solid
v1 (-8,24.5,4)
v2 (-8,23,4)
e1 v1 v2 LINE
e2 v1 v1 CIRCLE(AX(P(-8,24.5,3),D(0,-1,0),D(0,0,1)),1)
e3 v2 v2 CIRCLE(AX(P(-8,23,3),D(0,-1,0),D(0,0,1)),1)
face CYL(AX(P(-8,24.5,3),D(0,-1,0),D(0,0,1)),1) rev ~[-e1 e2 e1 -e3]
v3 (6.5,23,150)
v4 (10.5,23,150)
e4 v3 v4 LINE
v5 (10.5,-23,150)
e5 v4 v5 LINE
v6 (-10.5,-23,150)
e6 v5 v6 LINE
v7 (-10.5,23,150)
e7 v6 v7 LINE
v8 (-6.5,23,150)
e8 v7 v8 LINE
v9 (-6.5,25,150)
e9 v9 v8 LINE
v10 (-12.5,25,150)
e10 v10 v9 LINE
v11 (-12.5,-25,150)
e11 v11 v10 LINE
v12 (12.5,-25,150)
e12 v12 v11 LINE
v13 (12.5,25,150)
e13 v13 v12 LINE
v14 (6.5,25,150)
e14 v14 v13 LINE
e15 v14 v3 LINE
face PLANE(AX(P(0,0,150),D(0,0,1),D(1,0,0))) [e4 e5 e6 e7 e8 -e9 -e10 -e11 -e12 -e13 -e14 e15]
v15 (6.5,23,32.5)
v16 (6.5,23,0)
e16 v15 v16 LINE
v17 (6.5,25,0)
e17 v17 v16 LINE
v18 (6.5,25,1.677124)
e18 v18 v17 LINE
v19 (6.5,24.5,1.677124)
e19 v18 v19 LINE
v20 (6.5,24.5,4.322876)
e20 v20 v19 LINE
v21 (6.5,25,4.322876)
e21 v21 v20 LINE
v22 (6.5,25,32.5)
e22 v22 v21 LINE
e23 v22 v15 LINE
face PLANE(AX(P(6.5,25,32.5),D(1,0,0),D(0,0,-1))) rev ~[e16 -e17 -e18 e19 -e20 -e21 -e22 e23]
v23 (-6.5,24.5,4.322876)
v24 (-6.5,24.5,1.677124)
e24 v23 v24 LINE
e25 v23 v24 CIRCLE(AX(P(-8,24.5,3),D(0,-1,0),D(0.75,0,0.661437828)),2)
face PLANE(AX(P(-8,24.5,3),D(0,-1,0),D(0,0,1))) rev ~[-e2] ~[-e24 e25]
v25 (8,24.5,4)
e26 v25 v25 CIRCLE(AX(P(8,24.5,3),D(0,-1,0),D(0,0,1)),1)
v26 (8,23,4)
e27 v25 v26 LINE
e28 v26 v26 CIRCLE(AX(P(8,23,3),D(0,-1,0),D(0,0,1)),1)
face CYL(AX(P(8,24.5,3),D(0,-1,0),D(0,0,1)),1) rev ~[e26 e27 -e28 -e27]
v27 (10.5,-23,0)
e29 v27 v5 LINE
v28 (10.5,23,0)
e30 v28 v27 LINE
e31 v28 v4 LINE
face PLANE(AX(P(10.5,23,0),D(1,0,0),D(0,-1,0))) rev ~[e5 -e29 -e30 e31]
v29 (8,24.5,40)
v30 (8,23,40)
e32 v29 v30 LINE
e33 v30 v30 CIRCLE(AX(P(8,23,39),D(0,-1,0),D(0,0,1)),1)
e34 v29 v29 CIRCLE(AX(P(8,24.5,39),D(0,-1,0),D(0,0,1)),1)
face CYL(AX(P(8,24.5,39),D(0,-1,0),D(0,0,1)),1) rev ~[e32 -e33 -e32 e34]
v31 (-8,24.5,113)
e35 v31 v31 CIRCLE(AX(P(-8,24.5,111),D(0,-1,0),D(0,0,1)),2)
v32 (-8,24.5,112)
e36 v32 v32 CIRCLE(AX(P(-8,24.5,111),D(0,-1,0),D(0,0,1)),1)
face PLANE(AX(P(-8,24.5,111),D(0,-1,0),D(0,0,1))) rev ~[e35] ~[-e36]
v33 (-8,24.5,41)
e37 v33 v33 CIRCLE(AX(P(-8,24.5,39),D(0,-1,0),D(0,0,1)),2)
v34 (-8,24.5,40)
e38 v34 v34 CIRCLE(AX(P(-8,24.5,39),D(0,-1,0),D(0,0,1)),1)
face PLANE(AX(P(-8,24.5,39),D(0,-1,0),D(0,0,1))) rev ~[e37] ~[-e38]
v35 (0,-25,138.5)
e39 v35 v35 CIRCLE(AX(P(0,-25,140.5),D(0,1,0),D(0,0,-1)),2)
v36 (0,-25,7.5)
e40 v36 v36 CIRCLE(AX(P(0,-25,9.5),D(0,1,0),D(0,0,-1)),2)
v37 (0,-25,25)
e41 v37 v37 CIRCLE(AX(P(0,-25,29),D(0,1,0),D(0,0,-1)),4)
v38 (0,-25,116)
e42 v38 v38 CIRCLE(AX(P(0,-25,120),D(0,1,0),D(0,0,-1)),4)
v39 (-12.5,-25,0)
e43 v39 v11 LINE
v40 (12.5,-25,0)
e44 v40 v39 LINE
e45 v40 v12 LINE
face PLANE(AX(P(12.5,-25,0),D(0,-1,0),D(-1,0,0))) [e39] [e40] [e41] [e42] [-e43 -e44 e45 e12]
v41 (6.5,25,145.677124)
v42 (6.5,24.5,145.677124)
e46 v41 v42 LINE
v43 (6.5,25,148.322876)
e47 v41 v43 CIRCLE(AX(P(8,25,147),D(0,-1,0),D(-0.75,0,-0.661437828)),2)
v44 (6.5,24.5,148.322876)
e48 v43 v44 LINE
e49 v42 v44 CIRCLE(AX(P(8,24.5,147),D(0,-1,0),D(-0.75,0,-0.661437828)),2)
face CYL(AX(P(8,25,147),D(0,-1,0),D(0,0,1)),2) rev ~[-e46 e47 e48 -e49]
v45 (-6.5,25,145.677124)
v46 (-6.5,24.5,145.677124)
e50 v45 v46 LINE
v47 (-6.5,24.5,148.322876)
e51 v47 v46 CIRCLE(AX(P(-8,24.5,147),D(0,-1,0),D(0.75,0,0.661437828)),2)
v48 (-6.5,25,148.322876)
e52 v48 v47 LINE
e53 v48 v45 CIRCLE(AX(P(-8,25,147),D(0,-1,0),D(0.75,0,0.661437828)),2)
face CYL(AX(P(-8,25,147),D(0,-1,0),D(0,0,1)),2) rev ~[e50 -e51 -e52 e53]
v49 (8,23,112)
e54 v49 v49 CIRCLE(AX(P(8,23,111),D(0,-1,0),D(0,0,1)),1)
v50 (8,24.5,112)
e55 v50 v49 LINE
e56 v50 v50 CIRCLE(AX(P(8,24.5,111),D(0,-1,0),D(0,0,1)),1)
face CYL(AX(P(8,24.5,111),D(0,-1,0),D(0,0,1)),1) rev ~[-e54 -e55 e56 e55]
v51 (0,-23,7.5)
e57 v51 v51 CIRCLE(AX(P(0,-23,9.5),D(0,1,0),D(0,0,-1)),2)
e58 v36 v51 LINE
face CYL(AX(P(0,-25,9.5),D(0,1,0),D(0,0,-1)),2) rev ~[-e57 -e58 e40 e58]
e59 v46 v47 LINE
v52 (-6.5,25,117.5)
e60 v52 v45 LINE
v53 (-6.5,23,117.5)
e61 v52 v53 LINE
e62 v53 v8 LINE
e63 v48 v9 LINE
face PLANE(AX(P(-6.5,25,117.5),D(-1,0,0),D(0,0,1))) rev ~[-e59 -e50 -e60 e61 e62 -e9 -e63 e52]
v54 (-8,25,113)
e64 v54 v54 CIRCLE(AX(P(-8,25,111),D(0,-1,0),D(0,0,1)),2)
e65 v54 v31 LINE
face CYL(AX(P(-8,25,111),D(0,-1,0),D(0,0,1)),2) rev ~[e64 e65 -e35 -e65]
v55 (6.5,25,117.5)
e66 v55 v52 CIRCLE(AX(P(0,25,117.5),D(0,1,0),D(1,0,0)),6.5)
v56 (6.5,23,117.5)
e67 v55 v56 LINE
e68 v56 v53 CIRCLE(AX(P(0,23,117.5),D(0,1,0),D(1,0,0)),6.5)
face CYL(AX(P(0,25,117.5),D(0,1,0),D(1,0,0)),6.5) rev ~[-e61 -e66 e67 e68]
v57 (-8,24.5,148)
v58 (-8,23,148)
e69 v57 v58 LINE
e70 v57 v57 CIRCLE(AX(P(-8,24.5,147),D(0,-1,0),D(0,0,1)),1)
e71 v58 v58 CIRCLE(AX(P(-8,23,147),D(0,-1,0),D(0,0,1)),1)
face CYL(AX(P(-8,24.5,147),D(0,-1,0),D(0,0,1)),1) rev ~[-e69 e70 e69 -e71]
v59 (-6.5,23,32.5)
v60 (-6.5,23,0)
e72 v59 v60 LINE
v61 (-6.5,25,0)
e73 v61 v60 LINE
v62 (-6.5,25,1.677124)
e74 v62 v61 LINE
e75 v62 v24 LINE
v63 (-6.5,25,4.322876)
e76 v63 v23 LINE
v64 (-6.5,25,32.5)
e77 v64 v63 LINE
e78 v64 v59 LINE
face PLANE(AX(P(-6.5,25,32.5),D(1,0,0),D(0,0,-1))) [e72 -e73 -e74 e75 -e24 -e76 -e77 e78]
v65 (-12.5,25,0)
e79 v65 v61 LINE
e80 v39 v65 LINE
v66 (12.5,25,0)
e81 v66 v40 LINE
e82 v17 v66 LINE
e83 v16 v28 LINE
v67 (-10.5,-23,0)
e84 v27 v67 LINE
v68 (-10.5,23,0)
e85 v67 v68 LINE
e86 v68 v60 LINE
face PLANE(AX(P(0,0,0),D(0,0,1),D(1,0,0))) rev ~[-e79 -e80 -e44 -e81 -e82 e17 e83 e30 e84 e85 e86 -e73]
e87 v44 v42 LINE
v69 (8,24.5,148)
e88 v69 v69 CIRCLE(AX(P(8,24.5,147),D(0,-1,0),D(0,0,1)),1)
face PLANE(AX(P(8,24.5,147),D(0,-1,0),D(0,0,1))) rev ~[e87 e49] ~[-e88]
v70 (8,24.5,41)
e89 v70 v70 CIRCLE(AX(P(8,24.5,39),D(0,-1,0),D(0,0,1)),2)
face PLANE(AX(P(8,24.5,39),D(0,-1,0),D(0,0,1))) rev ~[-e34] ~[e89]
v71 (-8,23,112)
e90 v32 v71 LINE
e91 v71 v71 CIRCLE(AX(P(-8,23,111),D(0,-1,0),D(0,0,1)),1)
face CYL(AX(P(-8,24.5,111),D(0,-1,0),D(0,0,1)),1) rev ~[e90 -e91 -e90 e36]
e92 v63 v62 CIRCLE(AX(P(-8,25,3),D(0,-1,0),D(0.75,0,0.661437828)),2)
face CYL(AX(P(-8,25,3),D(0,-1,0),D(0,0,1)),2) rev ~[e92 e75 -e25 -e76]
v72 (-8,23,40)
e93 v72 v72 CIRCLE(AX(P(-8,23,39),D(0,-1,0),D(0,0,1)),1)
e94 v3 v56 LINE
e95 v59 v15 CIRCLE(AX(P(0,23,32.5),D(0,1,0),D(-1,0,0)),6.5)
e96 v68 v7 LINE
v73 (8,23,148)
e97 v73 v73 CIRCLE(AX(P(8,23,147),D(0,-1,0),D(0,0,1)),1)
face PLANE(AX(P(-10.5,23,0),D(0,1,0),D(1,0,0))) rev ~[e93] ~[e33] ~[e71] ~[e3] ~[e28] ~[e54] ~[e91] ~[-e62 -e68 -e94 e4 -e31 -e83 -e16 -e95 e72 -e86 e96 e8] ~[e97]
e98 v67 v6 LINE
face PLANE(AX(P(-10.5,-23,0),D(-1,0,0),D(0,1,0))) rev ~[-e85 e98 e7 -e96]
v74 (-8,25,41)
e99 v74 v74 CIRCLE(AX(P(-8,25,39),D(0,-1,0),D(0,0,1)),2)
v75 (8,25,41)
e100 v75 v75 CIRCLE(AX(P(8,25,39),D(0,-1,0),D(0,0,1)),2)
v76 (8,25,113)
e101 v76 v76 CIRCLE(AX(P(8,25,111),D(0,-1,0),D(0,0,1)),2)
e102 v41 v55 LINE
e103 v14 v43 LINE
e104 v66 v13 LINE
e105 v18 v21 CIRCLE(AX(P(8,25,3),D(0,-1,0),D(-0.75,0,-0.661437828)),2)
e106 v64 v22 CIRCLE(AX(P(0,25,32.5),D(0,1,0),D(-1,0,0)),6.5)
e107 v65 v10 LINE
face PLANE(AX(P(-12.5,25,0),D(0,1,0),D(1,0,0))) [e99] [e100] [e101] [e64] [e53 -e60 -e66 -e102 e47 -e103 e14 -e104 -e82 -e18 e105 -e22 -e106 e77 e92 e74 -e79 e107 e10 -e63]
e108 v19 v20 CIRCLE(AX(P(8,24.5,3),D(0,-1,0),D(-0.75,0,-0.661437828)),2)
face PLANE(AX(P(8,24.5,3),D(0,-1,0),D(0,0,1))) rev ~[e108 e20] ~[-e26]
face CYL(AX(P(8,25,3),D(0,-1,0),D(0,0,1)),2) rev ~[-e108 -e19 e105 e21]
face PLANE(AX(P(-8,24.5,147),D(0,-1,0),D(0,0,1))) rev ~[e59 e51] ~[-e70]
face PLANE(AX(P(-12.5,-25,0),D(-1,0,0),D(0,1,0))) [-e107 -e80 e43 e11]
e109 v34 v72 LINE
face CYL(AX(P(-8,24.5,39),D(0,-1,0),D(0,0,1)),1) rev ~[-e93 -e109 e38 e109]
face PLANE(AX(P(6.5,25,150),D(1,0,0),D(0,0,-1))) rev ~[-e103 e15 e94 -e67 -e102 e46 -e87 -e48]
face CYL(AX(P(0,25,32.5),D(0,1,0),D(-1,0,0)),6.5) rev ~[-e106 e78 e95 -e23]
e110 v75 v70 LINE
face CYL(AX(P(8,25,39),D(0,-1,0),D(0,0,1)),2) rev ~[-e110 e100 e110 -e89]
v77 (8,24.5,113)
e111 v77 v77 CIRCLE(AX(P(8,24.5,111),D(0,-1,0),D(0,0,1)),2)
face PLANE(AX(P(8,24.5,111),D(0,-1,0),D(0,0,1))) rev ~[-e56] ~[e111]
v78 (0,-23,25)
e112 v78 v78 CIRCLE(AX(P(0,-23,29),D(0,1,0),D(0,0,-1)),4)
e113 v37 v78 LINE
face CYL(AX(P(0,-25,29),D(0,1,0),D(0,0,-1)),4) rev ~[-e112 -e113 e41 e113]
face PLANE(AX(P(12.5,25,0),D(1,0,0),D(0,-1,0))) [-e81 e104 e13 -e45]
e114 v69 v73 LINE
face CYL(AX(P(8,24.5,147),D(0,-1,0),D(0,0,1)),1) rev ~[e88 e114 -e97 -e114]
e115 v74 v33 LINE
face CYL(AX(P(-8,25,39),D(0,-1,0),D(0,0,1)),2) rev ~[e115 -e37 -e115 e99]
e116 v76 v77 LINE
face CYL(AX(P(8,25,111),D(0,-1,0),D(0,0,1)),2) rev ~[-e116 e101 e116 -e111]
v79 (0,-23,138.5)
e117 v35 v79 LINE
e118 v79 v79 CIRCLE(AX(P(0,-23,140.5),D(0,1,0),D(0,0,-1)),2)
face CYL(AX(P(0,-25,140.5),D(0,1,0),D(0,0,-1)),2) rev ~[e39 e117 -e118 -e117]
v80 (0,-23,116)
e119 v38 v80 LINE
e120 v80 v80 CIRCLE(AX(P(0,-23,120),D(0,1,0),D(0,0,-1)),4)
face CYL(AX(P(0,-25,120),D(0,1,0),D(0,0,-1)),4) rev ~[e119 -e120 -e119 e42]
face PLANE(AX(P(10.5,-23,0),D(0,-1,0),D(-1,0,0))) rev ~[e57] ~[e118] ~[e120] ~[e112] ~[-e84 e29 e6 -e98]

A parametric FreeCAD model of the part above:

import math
import FreeCAD as App
import Part
import Sketcher
Q = App.Units.Quantity


def add_polygon(sketch, points):
    """Adds a closed chain of lines whose ends are joined by coincident constraints."""
    first, n = sketch.GeometryCount, len(points)
    for a, b in zip(points, points[1:] + points[:1]):
        sketch.addGeometry(Part.LineSegment(App.Vector(*a, 0), App.Vector(*b, 0)), False)
    for i in range(n):
        sketch.addConstraint(Sketcher.Constraint("Coincident", first + i, 2, first + (i + 1) % n, 1))

doc = App.newDocument("Part")
body = doc.addObject("PartDesign::Body", "Body")

# Sketch on XY plane
sketch1 = body.newObject("Sketcher::SketchObject", "Sketch")
sketch1.AttachmentSupport = (doc.getObject("XY_Plane"), [""])
sketch1.MapMode = "FlatFace"
add_polygon(sketch1, [(12, 25), (-12, 25), (-12, -25), (12, -25)])  # lines 0-3
add_polygon(sketch1, [(-10, -23), (-10, 23), (10, 23), (10, -23)])  # lines 4-7
sketch1.addConstraint(Sketcher.Constraint("Horizontal", 0))
sketch1.addConstraint(Sketcher.Constraint("Vertical", 1))
sketch1.addConstraint(Sketcher.Constraint("Horizontal", 2))
sketch1.addConstraint(Sketcher.Constraint("Vertical", 3))
sketch1.addConstraint(Sketcher.Constraint("Vertical", 4))
sketch1.addConstraint(Sketcher.Constraint("Horizontal", 5))
sketch1.addConstraint(Sketcher.Constraint("Vertical", 6))
sketch1.addConstraint(Sketcher.Constraint("Horizontal", 7))
sketch1.addConstraint(Sketcher.Constraint("Symmetric", 0, 2, 2, 2, -1, 1))
sketch1.addConstraint(Sketcher.Constraint("Symmetric", 4, 2, 6, 2, -1, 1))
sketch1.addConstraint(Sketcher.Constraint("DistanceX", 0, 2, 0, 1, Q("25 mm")))
sketch1.addConstraint(Sketcher.Constraint("DistanceX", 5, 1, 5, 2, Q("21 mm")))
sketch1.addConstraint(Sketcher.Constraint("DistanceY", 1, 2, 1, 1, Q("50 mm")))
sketch1.addConstraint(Sketcher.Constraint("DistanceY", 4, 1, 4, 2, Q("46 mm")))
pad1 = body.newObject("PartDesign::Pad", "Pad")
pad1.Profile = sketch1
pad1.Length = 150

# Sketch on XZ plane
sketch2 = body.newObject("Sketcher::SketchObject", "Sketch001")
sketch2.AttachmentSupport = (doc.getObject("XZ_Plane"), [""])
sketch2.MapMode = "FlatFace"
sketch2.AttachmentOffset = App.Placement(App.Vector(0, 0, -25), App.Rotation())
sketch2.addGeometry(Part.LineSegment(App.Vector(6, 0, 0), App.Vector(-6, 0, 0)), False)
sketch2.addGeometry(Part.LineSegment(App.Vector(-6, 0, 0), App.Vector(-6, 32, 0)), False)
sketch2.addGeometry(Part.ArcOfCircle(Part.Circle(App.Vector(0, 32, 0), App.Vector(0, 0, 1), 6), math.radians(0), math.radians(180)), False)
sketch2.addGeometry(Part.LineSegment(App.Vector(6, 32, 0), App.Vector(6, 0, 0)), False)
sketch2.addConstraint(Sketcher.Constraint("Coincident", 0, 2, 1, 1))
sketch2.addConstraint(Sketcher.Constraint("Tangent", 1, 2, 2, 2))
sketch2.addConstraint(Sketcher.Constraint("Tangent", 2, 1, 3, 1))
sketch2.addConstraint(Sketcher.Constraint("Coincident", 3, 2, 0, 1))
sketch2.addConstraint(Sketcher.Constraint("Horizontal", 0))
sketch2.addConstraint(Sketcher.Constraint("Vertical", 1))
sketch2.addConstraint(Sketcher.Constraint("Vertical", 3))
sketch2.addConstraint(Sketcher.Constraint("Symmetric", 0, 2, 3, 2, -1, 1))
sketch2.addConstraint(Sketcher.Constraint("Radius", 2, Q("6.5 mm")))
sketch2.addConstraint(Sketcher.Constraint("DistanceY", 1, 1, 1, 2, Q("32.5 mm")))
pocket1 = body.newObject("PartDesign::Pocket", "Pocket")
pocket1.Profile = sketch2
pocket1.Length = 2
pocket1.Reversed = True

# Sketch on XZ plane
sketch3 = body.newObject("Sketcher::SketchObject", "Sketch002")
sketch3.AttachmentSupport = (doc.getObject("XZ_Plane"), [""])
sketch3.MapMode = "FlatFace"
sketch3.AttachmentOffset = App.Placement(App.Vector(0, 0, -25), App.Rotation())
sketch3.addGeometry(Part.Circle(App.Vector(-8, 3, 0), App.Vector(0, 0, 1), 1), False)
sketch3.addGeometry(Part.Circle(App.Vector(8, 3, 0), App.Vector(0, 0, 1), 1), False)
sketch3.addGeometry(Part.Circle(App.Vector(8, 39, 0), App.Vector(0, 0, 1), 1), False)
sketch3.addGeometry(Part.Circle(App.Vector(-8, 39, 0), App.Vector(0, 0, 1), 1), False)
sketch3.addConstraint(Sketcher.Constraint("Equal", 0, 1))
sketch3.addConstraint(Sketcher.Constraint("Equal", 1, 2))
sketch3.addConstraint(Sketcher.Constraint("Equal", 2, 3))
sketch3.addConstraint(Sketcher.Constraint("Symmetric", 0, 3, 1, 3, -2))
sketch3.addConstraint(Sketcher.Constraint("Symmetric", 2, 3, 3, 3, -2))
sketch3.addConstraint(Sketcher.Constraint("Vertical", 1, 3, 2, 3))
sketch3.addConstraint(Sketcher.Constraint("Diameter", 0, Q("2 mm")))
sketch3.addConstraint(Sketcher.Constraint("DistanceX", 0, 3, -1, 1, Q("8 mm")))
sketch3.addConstraint(Sketcher.Constraint("DistanceY", -1, 1, 0, 3, Q("3 mm")))
sketch3.addConstraint(Sketcher.Constraint("DistanceY", -1, 1, 2, 3, Q("39 mm")))
doc.recompute()
hole = body.newObject("PartDesign::Hole", "Hole")
hole.Profile = sketch3
hole.ThreadType = "None"
hole.Diameter = 2
hole.DepthType = "Dimension"
hole.Depth = 2
hole.DrillPoint = "Angled"
hole.DrillPointAngle = 118
hole.HoleCutType = "Counterbore"
hole.HoleCutDiameter = 4
hole.HoleCutDepth = 0.5
hole.Reversed = True

# Sketch on XZ plane
sketch4 = body.newObject("Sketcher::SketchObject", "Sketch003")
sketch4.AttachmentSupport = (doc.getObject("XZ_Plane"), [""])
sketch4.MapMode = "FlatFace"
sketch4.AttachmentOffset = App.Placement(App.Vector(0, 0, 25), App.Rotation())
sketch4.addGeometry(Part.Circle(App.Vector(0, 9.5, 0), App.Vector(0, 0, 1), 2), False)
sketch4.addConstraint(Sketcher.Constraint("PointOnObject", 0, 3, -2))
sketch4.addConstraint(Sketcher.Constraint("Diameter", 0, Q("4 mm")))
sketch4.addConstraint(Sketcher.Constraint("DistanceY", -1, 1, 0, 3, Q("9.5 mm")))
doc.recompute()
hole2 = body.newObject("PartDesign::Hole", "Hole001")
hole2.Profile = sketch4
hole2.ThreadType = "None"
hole2.Diameter = 4
hole2.DepthType = "ThroughAll"

# Sketch on XZ plane
sketch5 = body.newObject("Sketcher::SketchObject", "Sketch004")
sketch5.AttachmentSupport = (doc.getObject("XZ_Plane"), [""])
sketch5.MapMode = "FlatFace"
sketch5.AttachmentOffset = App.Placement(App.Vector(0, 0, 25), App.Rotation())
sketch5.addGeometry(Part.Circle(App.Vector(0, 29, 0), App.Vector(0, 0, 1), 4), False)
sketch5.addConstraint(Sketcher.Constraint("PointOnObject", 0, 3, -2))
sketch5.addConstraint(Sketcher.Constraint("Diameter", 0, Q("8 mm")))
sketch5.addConstraint(Sketcher.Constraint("DistanceY", -1, 1, 0, 3, Q("29 mm")))
doc.recompute()
hole3 = body.newObject("PartDesign::Hole", "Hole002")
hole3.Profile = sketch5
hole3.ThreadType = "None"
hole3.Diameter = 8
hole3.DepthType = "ThroughAll"

# Sketch on XZ plane
sketch6 = body.newObject("Sketcher::SketchObject", "Sketch005")
sketch6.AttachmentSupport = (doc.getObject("XZ_Plane"), [""])
sketch6.MapMode = "FlatFace"
sketch6.AttachmentOffset = App.Placement(App.Vector(0, 0, -25), App.Rotation())
sketch6.addGeometry(Part.LineSegment(App.Vector(-6, 118, 0), App.Vector(-6, 150, 0)), False)
sketch6.addGeometry(Part.LineSegment(App.Vector(-6, 150, 0), App.Vector(6, 150, 0)), False)
sketch6.addGeometry(Part.LineSegment(App.Vector(6, 150, 0), App.Vector(6, 118, 0)), False)
sketch6.addGeometry(Part.ArcOfCircle(Part.Circle(App.Vector(0, 118, 0), App.Vector(0, 0, 1), 6), math.radians(180), math.radians(360)), False)
sketch6.addConstraint(Sketcher.Constraint("Coincident", 0, 2, 1, 1))
sketch6.addConstraint(Sketcher.Constraint("Coincident", 1, 2, 2, 1))
sketch6.addConstraint(Sketcher.Constraint("Tangent", 2, 2, 3, 2))
sketch6.addConstraint(Sketcher.Constraint("Tangent", 3, 1, 0, 1))
sketch6.addConstraint(Sketcher.Constraint("Vertical", 0))
sketch6.addConstraint(Sketcher.Constraint("Horizontal", 1))
sketch6.addConstraint(Sketcher.Constraint("Vertical", 2))
sketch6.addConstraint(Sketcher.Constraint("PointOnObject", 3, 3, -2))
sketch6.addConstraint(Sketcher.Constraint("Radius", 3, Q("6.5 mm")))
sketch6.addConstraint(Sketcher.Constraint("DistanceY", 0, 1, 0, 2, Q("32.5 mm")))
sketch6.addConstraint(Sketcher.Constraint("DistanceY", -1, 1, 0, 2, Q("150 mm")))
pocket2 = body.newObject("PartDesign::Pocket", "Pocket001")
pocket2.Profile = sketch6
pocket2.Length = 2
pocket2.Reversed = True

# Sketch on XZ plane
sketch7 = body.newObject("Sketcher::SketchObject", "Sketch006")
sketch7.AttachmentSupport = (doc.getObject("XZ_Plane"), [""])
sketch7.MapMode = "FlatFace"
sketch7.AttachmentOffset = App.Placement(App.Vector(0, 0, -25), App.Rotation())
sketch7.addGeometry(Part.Circle(App.Vector(8, 147, 0), App.Vector(0, 0, 1), 1), False)
sketch7.addGeometry(Part.Circle(App.Vector(-8, 147, 0), App.Vector(0, 0, 1), 1), False)
sketch7.addGeometry(Part.Circle(App.Vector(-8, 111, 0), App.Vector(0, 0, 1), 1), False)
sketch7.addGeometry(Part.Circle(App.Vector(8, 111, 0), App.Vector(0, 0, 1), 1), False)
sketch7.addConstraint(Sketcher.Constraint("Equal", 0, 1))
sketch7.addConstraint(Sketcher.Constraint("Equal", 1, 2))
sketch7.addConstraint(Sketcher.Constraint("Equal", 2, 3))
sketch7.addConstraint(Sketcher.Constraint("Symmetric", 0, 3, 1, 3, -2))
sketch7.addConstraint(Sketcher.Constraint("Symmetric", 2, 3, 3, 3, -2))
sketch7.addConstraint(Sketcher.Constraint("Vertical", 1, 3, 2, 3))
sketch7.addConstraint(Sketcher.Constraint("Diameter", 0, Q("2 mm")))
sketch7.addConstraint(Sketcher.Constraint("DistanceX", -1, 1, 0, 3, Q("8 mm")))
sketch7.addConstraint(Sketcher.Constraint("DistanceY", -1, 1, 0, 3, Q("147 mm")))
sketch7.addConstraint(Sketcher.Constraint("DistanceY", -1, 1, 2, 3, Q("111 mm")))
doc.recompute()
hole4 = body.newObject("PartDesign::Hole", "Hole003")
hole4.Profile = sketch7
hole4.ThreadType = "None"
hole4.Diameter = 2
hole4.DepthType = "Dimension"
hole4.Depth = 2
hole4.DrillPoint = "Angled"
hole4.DrillPointAngle = 118
hole4.HoleCutType = "Counterbore"
hole4.HoleCutDiameter = 4
hole4.HoleCutDepth = 0.5
hole4.Reversed = True

# Sketch on XZ plane
sketch8 = body.newObject("Sketcher::SketchObject", "Sketch007")
sketch8.AttachmentSupport = (doc.getObject("XZ_Plane"), [""])
sketch8.MapMode = "FlatFace"
sketch8.AttachmentOffset = App.Placement(App.Vector(0, 0, 25), App.Rotation())
sketch8.addGeometry(Part.Circle(App.Vector(0, 140.5, 0), App.Vector(0, 0, 1), 2), False)
sketch8.addConstraint(Sketcher.Constraint("PointOnObject", 0, 3, -2))
sketch8.addConstraint(Sketcher.Constraint("Diameter", 0, Q("4 mm")))
sketch8.addConstraint(Sketcher.Constraint("DistanceY", -1, 1, 0, 3, Q("140.5 mm")))
doc.recompute()
hole5 = body.newObject("PartDesign::Hole", "Hole004")
hole5.Profile = sketch8
hole5.ThreadType = "None"
hole5.Diameter = 4
hole5.DepthType = "Dimension"
hole5.Depth = 2
hole5.DrillPoint = "Angled"
hole5.DrillPointAngle = 118

# Sketch on XZ plane
sketch9 = body.newObject("Sketcher::SketchObject", "Sketch008")
sketch9.AttachmentSupport = (doc.getObject("XZ_Plane"), [""])
sketch9.MapMode = "FlatFace"
sketch9.AttachmentOffset = App.Placement(App.Vector(0, 0, 25), App.Rotation())
sketch9.addGeometry(Part.Circle(App.Vector(0, 120, 0), App.Vector(0, 0, 1), 4), False)
sketch9.addConstraint(Sketcher.Constraint("PointOnObject", 0, 3, -2))
sketch9.addConstraint(Sketcher.Constraint("Diameter", 0, Q("8 mm")))
sketch9.addConstraint(Sketcher.Constraint("DistanceY", -1, 1, 0, 3, Q("120 mm")))
doc.recompute()
hole6 = body.newObject("PartDesign::Hole", "Hole005")
hole6.Profile = sketch9
hole6.ThreadType = "None"
hole6.Diameter = 8
hole6.DepthType = "Dimension"
hole6.Depth = 2
hole6.DrillPoint = "Angled"
hole6.DrillPointAngle = 118

doc.recompute()
